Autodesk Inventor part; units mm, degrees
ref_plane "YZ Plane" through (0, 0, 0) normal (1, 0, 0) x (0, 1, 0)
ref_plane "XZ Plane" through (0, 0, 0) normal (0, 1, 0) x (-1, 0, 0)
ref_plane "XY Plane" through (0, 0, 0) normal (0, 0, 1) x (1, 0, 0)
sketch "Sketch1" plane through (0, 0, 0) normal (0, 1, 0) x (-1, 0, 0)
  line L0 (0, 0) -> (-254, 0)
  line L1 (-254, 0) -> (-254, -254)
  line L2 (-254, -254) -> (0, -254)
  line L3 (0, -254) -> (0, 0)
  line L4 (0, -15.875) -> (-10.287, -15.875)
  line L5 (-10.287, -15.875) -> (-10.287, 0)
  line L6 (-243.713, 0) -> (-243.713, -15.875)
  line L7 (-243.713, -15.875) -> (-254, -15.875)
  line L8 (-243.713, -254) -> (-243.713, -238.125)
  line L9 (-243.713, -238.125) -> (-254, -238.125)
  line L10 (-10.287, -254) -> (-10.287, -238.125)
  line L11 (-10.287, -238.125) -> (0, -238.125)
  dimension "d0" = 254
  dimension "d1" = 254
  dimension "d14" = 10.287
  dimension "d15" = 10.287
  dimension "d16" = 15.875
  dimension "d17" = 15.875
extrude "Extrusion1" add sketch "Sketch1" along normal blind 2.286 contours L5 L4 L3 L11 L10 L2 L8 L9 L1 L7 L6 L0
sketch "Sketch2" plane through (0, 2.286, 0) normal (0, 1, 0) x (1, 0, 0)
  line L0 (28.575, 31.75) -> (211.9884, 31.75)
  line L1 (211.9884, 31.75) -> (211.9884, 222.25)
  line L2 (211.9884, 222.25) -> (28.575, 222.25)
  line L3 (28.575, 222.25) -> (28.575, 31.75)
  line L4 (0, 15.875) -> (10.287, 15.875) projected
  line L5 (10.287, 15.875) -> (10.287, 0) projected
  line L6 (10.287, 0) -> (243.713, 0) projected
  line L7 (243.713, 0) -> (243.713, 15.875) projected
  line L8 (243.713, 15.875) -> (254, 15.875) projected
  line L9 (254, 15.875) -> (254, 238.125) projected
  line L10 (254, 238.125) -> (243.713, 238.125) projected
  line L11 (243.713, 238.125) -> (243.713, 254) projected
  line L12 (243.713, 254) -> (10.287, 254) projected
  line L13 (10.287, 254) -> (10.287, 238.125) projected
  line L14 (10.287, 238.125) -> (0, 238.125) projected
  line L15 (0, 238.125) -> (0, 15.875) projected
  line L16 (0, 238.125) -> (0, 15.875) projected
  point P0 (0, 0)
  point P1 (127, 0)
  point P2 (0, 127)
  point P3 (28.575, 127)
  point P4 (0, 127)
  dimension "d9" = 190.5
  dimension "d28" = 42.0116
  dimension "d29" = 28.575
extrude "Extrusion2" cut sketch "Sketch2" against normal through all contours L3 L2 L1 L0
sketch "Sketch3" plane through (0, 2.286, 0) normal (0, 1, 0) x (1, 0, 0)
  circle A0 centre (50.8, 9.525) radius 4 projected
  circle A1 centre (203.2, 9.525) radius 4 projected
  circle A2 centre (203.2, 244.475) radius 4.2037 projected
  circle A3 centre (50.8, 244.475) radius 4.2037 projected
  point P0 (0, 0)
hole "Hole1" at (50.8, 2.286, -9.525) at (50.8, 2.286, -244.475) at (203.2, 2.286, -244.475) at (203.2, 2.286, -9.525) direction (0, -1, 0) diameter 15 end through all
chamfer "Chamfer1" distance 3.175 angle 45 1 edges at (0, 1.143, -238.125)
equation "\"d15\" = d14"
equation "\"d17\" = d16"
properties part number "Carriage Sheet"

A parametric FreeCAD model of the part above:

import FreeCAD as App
import Part
import Sketcher

V = App.Vector
Q = App.Units.Quantity


def edges_at(feature, points):
    """Names of the edges that pass closest to the given points."""
    edges = feature.Shape.Edges
    near = lambda p: min(range(len(edges)), key=lambda i: edges[i].distToShape(Part.Vertex(*p))[0])
    return sorted({f"Edge{near(p) + 1}" for p in points})

doc = App.newDocument("Part")
params = doc.addObject("Spreadsheet::Sheet", "Params")
for row, (alias, value) in enumerate([
    ("sketch1_width", "0.405 in"),
    ("sketch1_height", "0.625 in"),
    ("pad1_length", "0.09 in"),
    ("sketch2_height", "7.5 in"),
    ("sketch2_width", "7.221 in"),
    ("hole_diameter", "15 mm"),
    ("chamfer_size", "0.125 in"),
], start=1):
    params.set(f"A{row}", alias)
    params.set(f"B{row}", "=" + value)
    params.setAlias(f"B{row}", alias)

body = doc.addObject("PartDesign::Body", "Body")

sketch1 = doc.addObject("Sketcher::SketchObject", "Sketch")
body.addObject(sketch1)
sketch1.AttachmentSupport = (doc.XZ_Plane, [""])
sketch1.MapMode = "FlatFace"
sketch1.addGeometry([
    Part.LineSegment(V(10, -16, 0), V(10, 0, 0)),
    Part.LineSegment(V(10, 0, 0), V(244, 0, 0)),
    Part.LineSegment(V(244, 0, 0), V(244, -16, 0)),
    Part.LineSegment(V(244, -16, 0), V(254, -16, 0)),
    Part.LineSegment(V(254, -16, 0), V(254, -238, 0)),
    Part.LineSegment(V(254, -238, 0), V(244, -238, 0)),
    Part.LineSegment(V(244, -238, 0), V(244, -254, 0)),
    Part.LineSegment(V(244, -254, 0), V(10, -254, 0)),
    Part.LineSegment(V(10, -254, 0), V(10, -238, 0)),
    Part.LineSegment(V(10, -238, 0), V(0, -238, 0)),
    Part.LineSegment(V(0, -238, 0), V(0, -16, 0)),
    Part.LineSegment(V(0, -16, 0), V(10, -16, 0)),
], False)
sketch1.addConstraint([
    Sketcher.Constraint("Coincident", 0, 2, 1, 1),
    Sketcher.Constraint("Coincident", 1, 2, 2, 1),
    Sketcher.Constraint("Coincident", 2, 2, 3, 1),
    Sketcher.Constraint("Coincident", 3, 2, 4, 1),
    Sketcher.Constraint("Coincident", 4, 2, 5, 1),
    Sketcher.Constraint("Coincident", 5, 2, 6, 1),
    Sketcher.Constraint("Coincident", 6, 2, 7, 1),
    Sketcher.Constraint("Coincident", 7, 2, 8, 1),
    Sketcher.Constraint("Coincident", 8, 2, 9, 1),
    Sketcher.Constraint("Coincident", 9, 2, 10, 1),
    Sketcher.Constraint("Coincident", 10, 2, 11, 1),
    Sketcher.Constraint("Coincident", 11, 2, 0, 1),
    Sketcher.Constraint("Vertical", 0),
    Sketcher.Constraint("Horizontal", 1),
    Sketcher.Constraint("Vertical", 2),
    Sketcher.Constraint("Horizontal", 3),
    Sketcher.Constraint("Vertical", 4),
    Sketcher.Constraint("Horizontal", 5),
    Sketcher.Constraint("Vertical", 6),
    Sketcher.Constraint("Horizontal", 7),
    Sketcher.Constraint("Vertical", 8),
    Sketcher.Constraint("Horizontal", 9),
    Sketcher.Constraint("Vertical", 10),
    Sketcher.Constraint("Horizontal", 11),
    Sketcher.Constraint("PointOnObject", 0, 2, -1),
    Sketcher.Constraint("PointOnObject", 9, 2, -2),
    Sketcher.Constraint("Horizontal", 5, 2, 8, 2),
    Sketcher.Constraint("Horizontal", 3, 2, 10, 2),
    Sketcher.Constraint("Vertical", 2, 2, 5, 2),
    Sketcher.Constraint("Vertical", 0, 2, 7, 2),
    Sketcher.Constraint("Equal", 5, 9),
    Sketcher.Constraint("Equal", 2, 6),
    Sketcher.Constraint("DistanceX", -1, 1, 3, 2, Q("10 in")),
    Sketcher.Constraint("DistanceY", 6, 2, -1, 1, Q("10 in")),
    Sketcher.Constraint("DistanceX", 3, 1, 3, 2, Q("0.405 in")),
    Sketcher.Constraint("DistanceY", 0, 1, 0, 2, Q("0.625 in")),
])
sketch1.setExpression("Constraints[34]", "Params.sketch1_width")
sketch1.setExpression("Constraints[35]", "Params.sketch1_height")
pad1 = doc.addObject("PartDesign::Pad", "Pad")
body.addObject(pad1)
pad1.Profile = sketch1
pad1.setExpression("Length", "Params.pad1_length")
pad1.Reversed = True

sketch2 = doc.addObject("Sketcher::SketchObject", "Sketch001")
body.addObject(sketch2)
sketch2.AttachmentSupport = (doc.XZ_Plane, [""])
sketch2.MapMode = "FlatFace"
sketch2.AttachmentOffset = App.Placement(V(0, 0, -0.09 * 25.4), App.Rotation())
sketch2.addGeometry([
    Part.LineSegment(V(29, -222, 0), V(29, -32, 0)),
    Part.LineSegment(V(29, -32, 0), V(212, -32, 0)),
    Part.LineSegment(V(212, -32, 0), V(212, -222, 0)),
    Part.LineSegment(V(212, -222, 0), V(29, -222, 0)),
], False)
sketch2.addConstraint([
    Sketcher.Constraint("Coincident", 0, 2, 1, 1),
    Sketcher.Constraint("Coincident", 1, 2, 2, 1),
    Sketcher.Constraint("Coincident", 2, 2, 3, 1),
    Sketcher.Constraint("Coincident", 3, 2, 0, 1),
    Sketcher.Constraint("Vertical", 0),
    Sketcher.Constraint("Horizontal", 1),
    Sketcher.Constraint("Vertical", 2),
    Sketcher.Constraint("Horizontal", 3),
    Sketcher.Constraint("DistanceY", 0, 1, 0, 2, Q("7.5 in")),
    Sketcher.Constraint("DistanceX", -1, 1, 0, 2, Q("1.125 in")),
    Sketcher.Constraint("DistanceX", 1, 1, 1, 2, Q("7.221 in")),
    Sketcher.Constraint("DistanceY", 0, 2, -1, 1, Q("1.25 in")),
])
sketch2.setExpression("Constraints[8]", "Params.sketch2_height")
sketch2.setExpression("Constraints[10]", "Params.sketch2_width")
pocket1 = doc.addObject("PartDesign::Pocket", "Pocket")
body.addObject(pocket1)
pocket1.Profile = sketch2
pocket1.Type = "ThroughAll"
pocket1.Reversed = True

sketch3 = doc.addObject("Sketcher::SketchObject", "Sketch002")
body.addObject(sketch3)
sketch3.AttachmentSupport = (doc.XZ_Plane, [""])
sketch3.MapMode = "FlatFace"
sketch3.AttachmentOffset = App.Placement(V(0, 0, -0.09 * 25.4), App.Rotation())
sketch3.addGeometry([
    Part.Circle(V(51, -10, 0), V(0, 0, 1), 8),
    Part.Circle(V(51, -244, 0), V(0, 0, 1), 8),
    Part.Circle(V(203, -244, 0), V(0, 0, 1), 8),
    Part.Circle(V(203, -10, 0), V(0, 0, 1), 8),
], False)
sketch3.addConstraint([
    Sketcher.Constraint("Equal", 0, 1),
    Sketcher.Constraint("Equal", 1, 2),
    Sketcher.Constraint("Equal", 2, 3),
    Sketcher.Constraint("Horizontal", 1, 3, 2, 3),
    Sketcher.Constraint("Horizontal", 0, 3, 3, 3),
    Sketcher.Constraint("Vertical", 0, 3, 1, 3),
    Sketcher.Constraint("Vertical", 2, 3, 3, 3),
    Sketcher.Constraint("DistanceX", -1, 1, 0, 3, Q("2 in")),
    Sketcher.Constraint("DistanceX", -1, 1, 2, 3, Q("8 in")),
    Sketcher.Constraint("Diameter", 0, Q("15 mm")),
    Sketcher.Constraint("DistanceY", 1, 3, 0, 3, Q("9.25 in")),
    Sketcher.Constraint("DistanceY", 0, 3, -1, 1, Q("0.375 in")),
])
doc.recompute()
hole = doc.addObject("PartDesign::Hole", "Hole")
body.addObject(hole)
hole.Profile = sketch3
hole.ThreadType = "None"
hole.setExpression("Diameter", "Params.hole_diameter")
hole.DepthType = "ThroughAll"
hole.Reversed = True
doc.recompute()

chamfer = doc.addObject("PartDesign::Chamfer", "Chamfer")
body.addObject(chamfer)
chamfer.Base = (hole, edges_at(hole, [(0, 1.143, -238.125)]))
chamfer.setExpression("Size", "Params.chamfer_size")

doc.recompute()
